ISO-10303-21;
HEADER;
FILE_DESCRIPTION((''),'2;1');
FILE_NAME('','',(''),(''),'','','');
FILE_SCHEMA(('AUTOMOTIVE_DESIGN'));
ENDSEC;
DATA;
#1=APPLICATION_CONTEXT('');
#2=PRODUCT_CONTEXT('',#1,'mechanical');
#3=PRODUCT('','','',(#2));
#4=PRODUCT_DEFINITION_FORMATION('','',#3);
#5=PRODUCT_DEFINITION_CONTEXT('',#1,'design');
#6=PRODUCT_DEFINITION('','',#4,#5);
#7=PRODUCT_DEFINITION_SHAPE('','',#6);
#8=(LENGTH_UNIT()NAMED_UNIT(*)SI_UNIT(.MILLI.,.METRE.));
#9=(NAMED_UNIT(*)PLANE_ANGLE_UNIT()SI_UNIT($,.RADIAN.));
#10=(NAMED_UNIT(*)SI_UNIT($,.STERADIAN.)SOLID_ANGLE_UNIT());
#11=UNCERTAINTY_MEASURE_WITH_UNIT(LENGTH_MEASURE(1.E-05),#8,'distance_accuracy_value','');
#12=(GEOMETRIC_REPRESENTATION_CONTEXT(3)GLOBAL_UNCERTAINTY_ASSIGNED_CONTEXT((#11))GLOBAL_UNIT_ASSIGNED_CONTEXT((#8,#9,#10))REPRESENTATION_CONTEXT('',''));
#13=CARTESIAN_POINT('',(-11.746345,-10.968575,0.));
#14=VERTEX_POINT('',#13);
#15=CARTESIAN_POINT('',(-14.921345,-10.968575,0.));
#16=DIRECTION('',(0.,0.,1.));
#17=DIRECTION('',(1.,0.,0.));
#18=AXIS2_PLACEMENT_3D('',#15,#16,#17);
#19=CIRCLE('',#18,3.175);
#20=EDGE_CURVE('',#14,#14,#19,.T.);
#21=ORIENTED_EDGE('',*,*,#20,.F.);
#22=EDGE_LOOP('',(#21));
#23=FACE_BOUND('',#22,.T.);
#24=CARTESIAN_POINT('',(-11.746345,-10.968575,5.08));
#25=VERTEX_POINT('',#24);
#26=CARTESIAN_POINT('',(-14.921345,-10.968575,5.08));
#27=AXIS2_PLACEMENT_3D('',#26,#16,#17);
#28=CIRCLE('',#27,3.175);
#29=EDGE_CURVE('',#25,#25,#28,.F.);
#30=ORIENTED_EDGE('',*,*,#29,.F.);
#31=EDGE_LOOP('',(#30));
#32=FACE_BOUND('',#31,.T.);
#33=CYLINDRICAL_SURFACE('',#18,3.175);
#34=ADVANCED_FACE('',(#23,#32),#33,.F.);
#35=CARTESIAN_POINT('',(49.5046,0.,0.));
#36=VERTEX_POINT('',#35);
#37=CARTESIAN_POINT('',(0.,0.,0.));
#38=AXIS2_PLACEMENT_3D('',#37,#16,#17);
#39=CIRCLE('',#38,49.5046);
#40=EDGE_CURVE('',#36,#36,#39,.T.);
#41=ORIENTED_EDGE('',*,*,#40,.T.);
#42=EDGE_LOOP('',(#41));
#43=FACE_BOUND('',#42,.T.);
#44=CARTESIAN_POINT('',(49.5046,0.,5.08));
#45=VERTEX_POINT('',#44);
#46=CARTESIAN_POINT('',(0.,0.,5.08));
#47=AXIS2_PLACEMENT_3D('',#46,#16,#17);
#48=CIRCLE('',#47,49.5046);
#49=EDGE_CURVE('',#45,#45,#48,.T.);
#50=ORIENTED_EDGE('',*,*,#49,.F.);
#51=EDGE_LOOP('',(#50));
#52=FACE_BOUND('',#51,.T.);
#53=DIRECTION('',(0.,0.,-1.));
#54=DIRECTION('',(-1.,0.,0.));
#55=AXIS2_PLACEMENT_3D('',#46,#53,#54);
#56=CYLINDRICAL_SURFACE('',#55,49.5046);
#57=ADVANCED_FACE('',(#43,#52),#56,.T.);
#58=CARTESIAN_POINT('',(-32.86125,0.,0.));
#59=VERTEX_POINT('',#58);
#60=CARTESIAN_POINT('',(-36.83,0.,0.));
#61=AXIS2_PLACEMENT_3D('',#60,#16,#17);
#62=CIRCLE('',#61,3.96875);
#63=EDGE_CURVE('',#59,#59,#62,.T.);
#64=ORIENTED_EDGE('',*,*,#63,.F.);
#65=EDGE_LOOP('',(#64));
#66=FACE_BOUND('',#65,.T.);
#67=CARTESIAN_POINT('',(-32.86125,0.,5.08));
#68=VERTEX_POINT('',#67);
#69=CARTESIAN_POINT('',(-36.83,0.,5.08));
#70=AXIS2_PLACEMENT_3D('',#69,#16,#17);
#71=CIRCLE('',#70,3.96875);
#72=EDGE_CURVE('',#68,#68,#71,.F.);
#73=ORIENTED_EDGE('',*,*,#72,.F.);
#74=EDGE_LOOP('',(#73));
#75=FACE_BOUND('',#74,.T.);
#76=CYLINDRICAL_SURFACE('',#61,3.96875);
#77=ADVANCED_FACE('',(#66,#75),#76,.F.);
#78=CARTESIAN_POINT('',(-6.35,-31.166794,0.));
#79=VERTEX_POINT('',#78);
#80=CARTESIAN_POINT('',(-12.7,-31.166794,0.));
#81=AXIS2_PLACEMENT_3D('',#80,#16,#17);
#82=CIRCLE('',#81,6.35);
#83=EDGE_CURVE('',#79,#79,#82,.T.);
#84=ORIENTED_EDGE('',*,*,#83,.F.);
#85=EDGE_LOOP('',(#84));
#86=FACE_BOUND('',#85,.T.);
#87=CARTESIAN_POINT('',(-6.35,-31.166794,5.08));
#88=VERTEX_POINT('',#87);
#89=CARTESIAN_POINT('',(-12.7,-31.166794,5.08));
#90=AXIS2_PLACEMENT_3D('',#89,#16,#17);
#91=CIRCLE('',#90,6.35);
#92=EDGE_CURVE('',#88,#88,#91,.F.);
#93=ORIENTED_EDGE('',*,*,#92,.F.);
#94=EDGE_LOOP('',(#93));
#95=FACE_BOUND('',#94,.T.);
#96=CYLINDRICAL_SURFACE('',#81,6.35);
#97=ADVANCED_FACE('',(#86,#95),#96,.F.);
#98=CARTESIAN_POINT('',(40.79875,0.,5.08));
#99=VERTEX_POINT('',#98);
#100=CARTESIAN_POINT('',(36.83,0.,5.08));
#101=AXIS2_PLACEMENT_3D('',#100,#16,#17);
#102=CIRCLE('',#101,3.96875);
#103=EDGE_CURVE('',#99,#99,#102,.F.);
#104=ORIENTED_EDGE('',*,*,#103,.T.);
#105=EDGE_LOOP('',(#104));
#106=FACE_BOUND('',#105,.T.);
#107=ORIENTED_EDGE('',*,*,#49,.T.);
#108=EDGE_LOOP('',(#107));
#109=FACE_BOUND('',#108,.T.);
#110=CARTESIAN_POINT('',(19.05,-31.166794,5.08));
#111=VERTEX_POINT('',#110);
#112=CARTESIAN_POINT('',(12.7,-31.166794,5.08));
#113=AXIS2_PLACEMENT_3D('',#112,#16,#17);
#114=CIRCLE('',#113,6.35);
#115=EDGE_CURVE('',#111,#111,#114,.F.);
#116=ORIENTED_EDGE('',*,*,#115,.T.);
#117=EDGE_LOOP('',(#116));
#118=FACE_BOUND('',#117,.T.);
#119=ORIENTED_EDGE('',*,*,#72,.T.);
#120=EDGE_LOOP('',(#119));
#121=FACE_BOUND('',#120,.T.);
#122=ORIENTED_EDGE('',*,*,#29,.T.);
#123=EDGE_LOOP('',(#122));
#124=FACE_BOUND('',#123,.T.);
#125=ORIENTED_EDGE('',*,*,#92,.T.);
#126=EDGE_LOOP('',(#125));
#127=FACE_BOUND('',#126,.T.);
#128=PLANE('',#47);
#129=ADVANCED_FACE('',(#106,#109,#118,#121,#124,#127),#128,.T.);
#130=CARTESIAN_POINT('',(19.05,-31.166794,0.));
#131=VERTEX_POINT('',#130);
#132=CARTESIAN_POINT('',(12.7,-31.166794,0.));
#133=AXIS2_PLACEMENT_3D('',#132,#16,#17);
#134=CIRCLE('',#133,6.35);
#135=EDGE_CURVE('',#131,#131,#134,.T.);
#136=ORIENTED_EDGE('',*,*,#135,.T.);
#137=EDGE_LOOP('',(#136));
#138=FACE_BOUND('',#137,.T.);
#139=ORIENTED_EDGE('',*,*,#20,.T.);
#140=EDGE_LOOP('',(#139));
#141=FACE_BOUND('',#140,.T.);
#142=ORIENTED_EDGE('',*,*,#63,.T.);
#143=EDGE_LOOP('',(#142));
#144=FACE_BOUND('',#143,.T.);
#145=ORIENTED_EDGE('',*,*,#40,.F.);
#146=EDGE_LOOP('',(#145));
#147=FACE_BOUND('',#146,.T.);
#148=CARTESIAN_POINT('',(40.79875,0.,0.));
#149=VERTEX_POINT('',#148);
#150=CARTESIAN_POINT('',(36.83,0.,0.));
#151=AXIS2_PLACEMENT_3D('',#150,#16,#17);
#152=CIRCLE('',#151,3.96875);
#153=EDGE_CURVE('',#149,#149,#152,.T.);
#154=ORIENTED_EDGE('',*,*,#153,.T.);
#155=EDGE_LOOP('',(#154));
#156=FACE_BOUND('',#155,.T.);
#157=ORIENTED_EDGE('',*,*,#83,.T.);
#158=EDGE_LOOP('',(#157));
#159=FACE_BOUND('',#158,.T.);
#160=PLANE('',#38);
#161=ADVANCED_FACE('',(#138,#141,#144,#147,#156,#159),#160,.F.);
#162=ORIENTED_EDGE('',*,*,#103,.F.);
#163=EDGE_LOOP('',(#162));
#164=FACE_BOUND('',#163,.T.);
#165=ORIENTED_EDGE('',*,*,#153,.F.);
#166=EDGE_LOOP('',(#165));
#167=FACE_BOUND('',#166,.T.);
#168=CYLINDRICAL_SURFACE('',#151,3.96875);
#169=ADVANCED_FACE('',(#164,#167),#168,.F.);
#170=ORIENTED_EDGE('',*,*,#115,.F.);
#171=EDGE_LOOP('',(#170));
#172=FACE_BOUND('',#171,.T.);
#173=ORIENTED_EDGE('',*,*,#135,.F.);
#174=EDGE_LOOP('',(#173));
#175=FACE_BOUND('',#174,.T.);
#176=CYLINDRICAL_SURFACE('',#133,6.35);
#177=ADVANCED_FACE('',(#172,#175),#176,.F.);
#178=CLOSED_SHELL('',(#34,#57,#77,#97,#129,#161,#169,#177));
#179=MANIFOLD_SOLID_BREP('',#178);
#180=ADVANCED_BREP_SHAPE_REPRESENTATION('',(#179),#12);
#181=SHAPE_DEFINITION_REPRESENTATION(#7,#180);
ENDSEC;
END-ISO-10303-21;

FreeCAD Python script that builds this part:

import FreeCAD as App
import Part
import Sketcher

V = App.Vector
Q = App.Units.Quantity

doc = App.newDocument("Part")
params = doc.addObject("Spreadsheet::Sheet", "Params")
for row, (alias, value) in enumerate([
    ("sketch1_diameter", "3.898 in"),
    ("pad1_length", "0.2 in"),
    ("sketch2_diameter", "3.75 in"),
    ("pad2_length", "0.125 in"),
    ("sketch3_diameter", "0.5 in"),
    ("sketch3_diameter2", "0.25 in"),
    ("sketch3_diameter3", "0.3125 in"),
    ("pocket2_length", "0.125 in"),
], start=1):
    params.set(f"A{row}", alias)
    params.set(f"B{row}", "=" + value)
    params.setAlias(f"B{row}", alias)

body = doc.addObject("PartDesign::Body", "Body")

sketch1 = body.newObject("Sketcher::SketchObject", "Sketch")
sketch1.AttachmentSupport = (doc.getObject("XY_Plane"), [""])
sketch1.MapMode = "FlatFace"
sketch1.addGeometry(Part.Circle(V(0, 0, 0), V(0, 0, 1), 49.5046), False)
sketch1.addConstraint([
    Sketcher.Constraint("Coincident", 0, 3, -1, 1),
    Sketcher.Constraint("Diameter", 0, Q("3.898 in")),
])
sketch1.setExpression("Constraints[1]", "Params.sketch1_diameter")
pad1 = body.newObject("PartDesign::Pad", "Pad")
pad1.Profile = sketch1
pad1.setExpression("Length", "Params.pad1_length")

sketch2 = body.newObject("Sketcher::SketchObject", "Sketch001")
sketch2.AttachmentSupport = (doc.getObject("XY_Plane"), [""])
sketch2.MapMode = "FlatFace"
sketch2.AttachmentOffset = App.Placement(V(0, 0, 0.2 * 25.4), App.Rotation())
sketch2.addGeometry(Part.Circle(V(0, 0, 0), V(0, 0, 1), 47.625), False)
sketch2.addConstraint([
    Sketcher.Constraint("Coincident", 0, 3, -1, 1),
    Sketcher.Constraint("Diameter", 0, Q("3.75 in")),
])
sketch2.setExpression("Constraints[1]", "Params.sketch2_diameter")
pad2 = body.newObject("PartDesign::Pad", "Pad001")
pad2.Profile = sketch2
pad2.setExpression("Length", "Params.pad2_length")

sketch3 = body.newObject("Sketcher::SketchObject", "Sketch002")
sketch3.AttachmentSupport = (doc.getObject("XY_Plane"), [""])
sketch3.MapMode = "FlatFace"
sketch3.AttachmentOffset = App.Placement(V(0, 0, 0.325 * 25.4), App.Rotation())
sketch3.addGeometry([
    Part.Circle(V(-12.7, -31.166794, 0), V(0, 0, 1), 6.35),
    Part.Circle(V(12.7, -31.166794, 0), V(0, 0, 1), 6.35),
    Part.Circle(V(-36.83, 0, 0), V(0, 0, 1), 3.96875),
    Part.Circle(V(36.83, 0, 0), V(0, 0, 1), 3.96875),
    Part.Circle(V(-14.921345, -10.968575, 0), V(0, 0, 1), 3.175),
], False)
sketch3.addConstraint([
    Sketcher.Constraint("Equal", 0, 1),
    Sketcher.Constraint("Equal", 2, 3),
    Sketcher.Constraint("Symmetric", 2, 3, 3, 3, -1, 1),
    Sketcher.Constraint("Symmetric", 0, 3, 1, 3, -2),
    Sketcher.Constraint("PointOnObject", 2, 3, -1),
    Sketcher.Constraint("Diameter", 0, Q("0.5 in")),
    Sketcher.Constraint("Diameter", 4, Q("0.25 in")),
    Sketcher.Constraint("Diameter", 2, Q("0.3125 in")),
    Sketcher.Constraint("DistanceX", 0, 3, 1, 3, Q("1 in")),
    Sketcher.Constraint("DistanceX", 2, 3, 3, 3, Q("2.9 in")),
    Sketcher.Constraint("DistanceY", 0, 3, 4, 3, Q("20.198218 mm")),
    Sketcher.Constraint("DistanceY", 0, 3, -1, 1, Q("31.166794 mm")),
    Sketcher.Constraint("DistanceX", 4, 3, -1, 1, Q("14.921345 mm")),
])
sketch3.setExpression("Constraints[5]", "Params.sketch3_diameter")
sketch3.setExpression("Constraints[6]", "Params.sketch3_diameter2")
sketch3.setExpression("Constraints[7]", "Params.sketch3_diameter3")
pocket1 = body.newObject("PartDesign::Pocket", "Pocket")
pocket1.Profile = sketch3
pocket1.Type = "ThroughAll"

sketch4 = body.newObject("Sketcher::SketchObject", "Sketch003")
sketch4.AttachmentSupport = (doc.getObject("XY_Plane"), [""])
sketch4.MapMode = "FlatFace"
sketch4.AttachmentOffset = App.Placement(V(0, 0, 0.325 * 25.4), App.Rotation())
sketch4.addGeometry(Part.Circle(V(0, 0, 0), V(0, 0, 1), 53.65777), False)
sketch4.addConstraint([
    Sketcher.Constraint("Coincident", 0, 3, -1, 1),
    Sketcher.Constraint("Diameter", 0, Q("107.31554 mm")),
])
pocket2 = body.newObject("PartDesign::Pocket", "Pocket001")
pocket2.Profile = sketch4
pocket2.setExpression("Length", "Params.pocket2_length")

doc.recompute()
